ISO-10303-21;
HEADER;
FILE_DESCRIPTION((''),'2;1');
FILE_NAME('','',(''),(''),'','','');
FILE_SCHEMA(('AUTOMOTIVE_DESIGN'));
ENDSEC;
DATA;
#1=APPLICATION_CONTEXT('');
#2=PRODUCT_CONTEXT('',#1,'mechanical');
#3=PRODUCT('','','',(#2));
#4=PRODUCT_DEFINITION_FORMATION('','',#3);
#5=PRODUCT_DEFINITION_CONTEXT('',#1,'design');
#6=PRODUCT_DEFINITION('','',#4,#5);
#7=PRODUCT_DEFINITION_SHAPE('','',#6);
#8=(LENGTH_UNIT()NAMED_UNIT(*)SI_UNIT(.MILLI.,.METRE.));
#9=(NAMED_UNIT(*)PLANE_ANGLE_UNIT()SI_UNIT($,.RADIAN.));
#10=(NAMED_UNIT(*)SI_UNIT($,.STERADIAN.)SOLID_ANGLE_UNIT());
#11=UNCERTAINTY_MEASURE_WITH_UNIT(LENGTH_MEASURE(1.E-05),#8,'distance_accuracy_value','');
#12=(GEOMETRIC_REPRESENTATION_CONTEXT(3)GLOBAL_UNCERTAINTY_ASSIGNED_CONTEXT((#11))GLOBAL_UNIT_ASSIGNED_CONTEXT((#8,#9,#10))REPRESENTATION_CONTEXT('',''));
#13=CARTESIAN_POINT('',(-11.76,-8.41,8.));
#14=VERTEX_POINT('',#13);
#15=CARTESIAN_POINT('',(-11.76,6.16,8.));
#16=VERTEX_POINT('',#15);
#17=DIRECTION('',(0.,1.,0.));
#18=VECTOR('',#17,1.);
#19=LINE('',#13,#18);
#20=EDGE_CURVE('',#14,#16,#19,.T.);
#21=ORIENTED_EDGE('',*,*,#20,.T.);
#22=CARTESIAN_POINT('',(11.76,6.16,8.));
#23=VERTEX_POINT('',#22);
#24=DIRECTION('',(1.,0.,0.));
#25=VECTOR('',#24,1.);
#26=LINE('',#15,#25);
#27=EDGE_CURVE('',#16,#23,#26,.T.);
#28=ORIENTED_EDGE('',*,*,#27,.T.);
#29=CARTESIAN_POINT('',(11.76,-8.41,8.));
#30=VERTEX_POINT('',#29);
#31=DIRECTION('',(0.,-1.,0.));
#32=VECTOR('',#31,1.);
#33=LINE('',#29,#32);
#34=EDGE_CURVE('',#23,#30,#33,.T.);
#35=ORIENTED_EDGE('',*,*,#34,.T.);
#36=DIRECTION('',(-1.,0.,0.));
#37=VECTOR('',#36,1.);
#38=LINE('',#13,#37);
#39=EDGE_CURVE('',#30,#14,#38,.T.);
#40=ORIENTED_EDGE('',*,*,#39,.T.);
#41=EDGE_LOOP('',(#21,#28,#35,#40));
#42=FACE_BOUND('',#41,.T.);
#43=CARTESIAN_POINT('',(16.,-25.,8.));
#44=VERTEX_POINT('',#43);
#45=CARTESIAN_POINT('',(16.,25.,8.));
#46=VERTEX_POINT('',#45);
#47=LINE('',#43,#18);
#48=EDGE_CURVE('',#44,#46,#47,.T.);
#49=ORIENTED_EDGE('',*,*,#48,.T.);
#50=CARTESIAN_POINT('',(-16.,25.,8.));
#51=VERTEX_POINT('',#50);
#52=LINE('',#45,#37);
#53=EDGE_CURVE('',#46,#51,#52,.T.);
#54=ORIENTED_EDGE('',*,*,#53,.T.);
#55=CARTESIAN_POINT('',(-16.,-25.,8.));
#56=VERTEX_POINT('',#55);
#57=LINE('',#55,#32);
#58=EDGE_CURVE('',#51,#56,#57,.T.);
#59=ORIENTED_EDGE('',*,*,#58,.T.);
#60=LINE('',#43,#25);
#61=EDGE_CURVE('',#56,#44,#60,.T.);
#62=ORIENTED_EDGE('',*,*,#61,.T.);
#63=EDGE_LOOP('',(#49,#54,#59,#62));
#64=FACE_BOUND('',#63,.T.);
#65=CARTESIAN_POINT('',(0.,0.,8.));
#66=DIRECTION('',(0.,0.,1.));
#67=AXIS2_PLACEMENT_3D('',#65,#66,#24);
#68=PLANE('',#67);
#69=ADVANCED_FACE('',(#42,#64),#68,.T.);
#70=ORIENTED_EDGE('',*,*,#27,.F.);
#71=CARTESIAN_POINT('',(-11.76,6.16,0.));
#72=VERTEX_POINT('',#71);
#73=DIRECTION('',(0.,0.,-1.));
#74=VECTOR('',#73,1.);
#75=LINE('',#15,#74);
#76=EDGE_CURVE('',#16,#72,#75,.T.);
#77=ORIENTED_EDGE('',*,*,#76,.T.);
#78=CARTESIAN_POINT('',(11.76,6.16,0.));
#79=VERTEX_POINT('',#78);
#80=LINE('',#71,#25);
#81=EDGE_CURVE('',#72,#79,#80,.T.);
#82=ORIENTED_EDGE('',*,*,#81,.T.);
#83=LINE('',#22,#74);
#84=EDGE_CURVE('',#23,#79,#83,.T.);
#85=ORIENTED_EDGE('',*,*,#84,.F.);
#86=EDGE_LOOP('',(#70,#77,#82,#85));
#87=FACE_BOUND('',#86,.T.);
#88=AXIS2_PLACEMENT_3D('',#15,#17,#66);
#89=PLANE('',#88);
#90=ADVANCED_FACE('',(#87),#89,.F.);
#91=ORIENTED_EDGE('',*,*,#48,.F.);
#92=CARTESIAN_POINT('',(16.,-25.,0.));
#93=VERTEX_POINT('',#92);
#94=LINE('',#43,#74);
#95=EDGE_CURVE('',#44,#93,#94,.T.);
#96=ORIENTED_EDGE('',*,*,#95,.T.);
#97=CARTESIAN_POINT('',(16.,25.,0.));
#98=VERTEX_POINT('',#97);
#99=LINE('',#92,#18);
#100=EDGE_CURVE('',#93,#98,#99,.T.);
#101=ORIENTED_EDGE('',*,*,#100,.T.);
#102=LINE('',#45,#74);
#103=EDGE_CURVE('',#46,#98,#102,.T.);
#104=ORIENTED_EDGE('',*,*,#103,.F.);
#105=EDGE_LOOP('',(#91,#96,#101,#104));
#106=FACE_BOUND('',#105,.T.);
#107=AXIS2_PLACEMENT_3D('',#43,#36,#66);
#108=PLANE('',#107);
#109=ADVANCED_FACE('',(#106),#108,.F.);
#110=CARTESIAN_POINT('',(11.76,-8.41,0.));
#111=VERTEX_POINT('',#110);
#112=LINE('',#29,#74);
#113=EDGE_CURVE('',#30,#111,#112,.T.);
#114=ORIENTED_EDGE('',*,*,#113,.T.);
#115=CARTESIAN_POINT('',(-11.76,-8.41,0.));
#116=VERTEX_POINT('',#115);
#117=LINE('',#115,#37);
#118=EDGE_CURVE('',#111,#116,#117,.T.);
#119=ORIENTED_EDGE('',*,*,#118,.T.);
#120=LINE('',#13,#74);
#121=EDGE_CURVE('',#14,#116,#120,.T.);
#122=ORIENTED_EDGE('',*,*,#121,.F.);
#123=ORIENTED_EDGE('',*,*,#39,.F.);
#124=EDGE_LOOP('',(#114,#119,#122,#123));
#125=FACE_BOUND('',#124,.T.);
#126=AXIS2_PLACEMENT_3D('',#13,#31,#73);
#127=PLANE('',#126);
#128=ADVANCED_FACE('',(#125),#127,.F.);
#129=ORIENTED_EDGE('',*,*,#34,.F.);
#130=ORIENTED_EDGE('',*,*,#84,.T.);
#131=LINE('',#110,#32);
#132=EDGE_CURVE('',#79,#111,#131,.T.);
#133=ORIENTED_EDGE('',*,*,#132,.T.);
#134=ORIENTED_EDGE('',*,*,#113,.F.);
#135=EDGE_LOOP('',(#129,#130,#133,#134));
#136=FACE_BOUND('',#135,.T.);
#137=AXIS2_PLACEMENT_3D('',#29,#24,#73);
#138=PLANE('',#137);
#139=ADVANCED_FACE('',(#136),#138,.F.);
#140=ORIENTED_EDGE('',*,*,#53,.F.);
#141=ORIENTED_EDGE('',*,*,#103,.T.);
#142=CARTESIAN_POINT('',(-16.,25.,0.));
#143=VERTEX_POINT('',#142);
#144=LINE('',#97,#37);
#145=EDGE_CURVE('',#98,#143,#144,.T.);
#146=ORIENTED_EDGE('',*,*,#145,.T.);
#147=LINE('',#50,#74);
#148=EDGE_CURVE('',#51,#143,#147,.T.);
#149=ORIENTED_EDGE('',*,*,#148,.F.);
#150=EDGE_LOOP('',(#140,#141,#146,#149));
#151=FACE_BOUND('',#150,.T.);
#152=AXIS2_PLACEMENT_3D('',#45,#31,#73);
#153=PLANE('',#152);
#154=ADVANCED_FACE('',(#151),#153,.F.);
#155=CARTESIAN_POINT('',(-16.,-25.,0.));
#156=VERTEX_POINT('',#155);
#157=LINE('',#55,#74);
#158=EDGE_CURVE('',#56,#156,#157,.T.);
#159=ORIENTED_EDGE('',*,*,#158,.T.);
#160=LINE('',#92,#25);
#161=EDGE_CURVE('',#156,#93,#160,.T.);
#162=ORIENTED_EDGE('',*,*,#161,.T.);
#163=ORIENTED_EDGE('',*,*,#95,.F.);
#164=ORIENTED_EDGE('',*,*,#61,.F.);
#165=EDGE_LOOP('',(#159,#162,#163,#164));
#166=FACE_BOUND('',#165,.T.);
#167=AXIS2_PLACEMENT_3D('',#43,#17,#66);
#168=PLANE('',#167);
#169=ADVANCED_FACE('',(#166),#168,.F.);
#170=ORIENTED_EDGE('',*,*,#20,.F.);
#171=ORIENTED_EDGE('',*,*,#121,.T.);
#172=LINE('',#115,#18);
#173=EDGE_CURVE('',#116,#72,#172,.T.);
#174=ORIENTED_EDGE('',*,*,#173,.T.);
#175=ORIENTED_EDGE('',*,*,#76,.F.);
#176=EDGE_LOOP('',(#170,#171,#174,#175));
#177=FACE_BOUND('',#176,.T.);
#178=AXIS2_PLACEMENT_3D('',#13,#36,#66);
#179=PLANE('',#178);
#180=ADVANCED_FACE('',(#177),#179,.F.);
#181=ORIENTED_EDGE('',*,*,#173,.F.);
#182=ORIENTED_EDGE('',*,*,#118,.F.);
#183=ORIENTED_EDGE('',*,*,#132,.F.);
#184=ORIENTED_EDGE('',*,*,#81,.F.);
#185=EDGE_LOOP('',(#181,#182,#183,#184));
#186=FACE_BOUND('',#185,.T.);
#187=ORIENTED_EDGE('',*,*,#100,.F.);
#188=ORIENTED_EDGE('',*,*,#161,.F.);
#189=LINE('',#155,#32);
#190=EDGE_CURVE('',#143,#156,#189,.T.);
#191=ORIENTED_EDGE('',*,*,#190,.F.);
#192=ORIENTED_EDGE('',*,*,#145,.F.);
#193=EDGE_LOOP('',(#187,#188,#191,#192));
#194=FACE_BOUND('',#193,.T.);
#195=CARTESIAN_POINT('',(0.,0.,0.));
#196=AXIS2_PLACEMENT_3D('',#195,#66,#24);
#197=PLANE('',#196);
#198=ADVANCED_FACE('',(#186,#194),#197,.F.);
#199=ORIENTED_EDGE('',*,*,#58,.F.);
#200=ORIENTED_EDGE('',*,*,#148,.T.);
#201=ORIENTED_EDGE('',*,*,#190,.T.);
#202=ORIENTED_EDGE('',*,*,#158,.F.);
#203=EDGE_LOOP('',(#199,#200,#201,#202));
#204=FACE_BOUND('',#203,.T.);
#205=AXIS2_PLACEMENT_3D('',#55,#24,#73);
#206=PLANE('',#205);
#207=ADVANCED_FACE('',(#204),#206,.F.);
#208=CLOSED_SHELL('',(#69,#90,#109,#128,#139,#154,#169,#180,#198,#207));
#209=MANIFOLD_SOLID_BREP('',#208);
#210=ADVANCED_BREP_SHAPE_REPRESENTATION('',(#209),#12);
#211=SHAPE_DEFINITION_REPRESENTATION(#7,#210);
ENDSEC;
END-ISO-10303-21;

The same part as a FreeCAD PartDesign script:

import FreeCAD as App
import Part
import Sketcher

doc = App.newDocument("Part")
params = doc.addObject("Spreadsheet::Sheet", "Params")
for row, (alias, value) in enumerate([
    ("sketch1_width", "32 mm"),
    ("sketch1_height", "50 mm"),
    ("pad1_length", "8 mm"),
    ("sketch2_width", "23.52 mm"),
    ("sketch2_height", "14.57 mm"),
    ("pocket1_length", "8 mm"),
], start=1):
    params.set(f"A{row}", alias)
    params.set(f"B{row}", "=" + value)
    params.setAlias(f"B{row}", alias)

body = doc.addObject("PartDesign::Body", "Body")

sketch1 = doc.addObject("Sketcher::SketchObject", "Sketch")
body.addObject(sketch1)
sketch1.AttachmentSupport = (doc.XY_Plane, [""])
sketch1.MapMode = "FlatFace"
sketch1.addGeometry([
    Part.LineSegment(App.Vector(-16, 25, 0), App.Vector(-16, -25, 0)),
    Part.LineSegment(App.Vector(-16, -25, 0), App.Vector(16, -25, 0)),
    Part.LineSegment(App.Vector(16, -25, 0), App.Vector(16, 25, 0)),
    Part.LineSegment(App.Vector(16, 25, 0), App.Vector(-16, 25, 0)),
], False)
sketch1.addConstraint([
    Sketcher.Constraint("Coincident", 0, 2, 1, 1),
    Sketcher.Constraint("Coincident", 1, 2, 2, 1),
    Sketcher.Constraint("Coincident", 2, 2, 3, 1),
    Sketcher.Constraint("Coincident", 3, 2, 0, 1),
    Sketcher.Constraint("Vertical", 0),
    Sketcher.Constraint("Horizontal", 1),
    Sketcher.Constraint("Vertical", 2),
    Sketcher.Constraint("Horizontal", 3),
    Sketcher.Constraint("Symmetric", 0, 2, 2, 2, -1, 1),
    Sketcher.Constraint("DistanceX", 1, 1, 1, 2, 32.0),
    Sketcher.Constraint("DistanceY", 0, 2, 0, 1, 50.0),
])
sketch1.setExpression("Constraints[9]", "Params.sketch1_width")
sketch1.setExpression("Constraints[10]", "Params.sketch1_height")
pad1 = doc.addObject("PartDesign::Pad", "Pad")
body.addObject(pad1)
pad1.Profile = sketch1
pad1.setExpression("Length", "Params.pad1_length")

sketch2 = doc.addObject("Sketcher::SketchObject", "Sketch001")
body.addObject(sketch2)
sketch2.AttachmentSupport = (doc.XY_Plane, [""])
sketch2.MapMode = "FlatFace"
sketch2.addGeometry([
    Part.LineSegment(App.Vector(12, 6, 0), App.Vector(12, -8, 0)),
    Part.LineSegment(App.Vector(12, -8, 0), App.Vector(-12, -8, 0)),
    Part.LineSegment(App.Vector(-12, -8, 0), App.Vector(-12, 6, 0)),
    Part.LineSegment(App.Vector(-12, 6, 0), App.Vector(12, 6, 0)),
], False)
sketch2.addConstraint([
    Sketcher.Constraint("Coincident", 0, 2, 1, 1),
    Sketcher.Constraint("Coincident", 1, 2, 2, 1),
    Sketcher.Constraint("Coincident", 2, 2, 3, 1),
    Sketcher.Constraint("Coincident", 3, 2, 0, 1),
    Sketcher.Constraint("Vertical", 0),
    Sketcher.Constraint("Horizontal", 1),
    Sketcher.Constraint("Vertical", 2),
    Sketcher.Constraint("Horizontal", 3),
    Sketcher.Constraint("DistanceX", 1, 2, 1, 1, 23.52),
    Sketcher.Constraint("DistanceY", 0, 2, 0, 1, 14.57),
    Sketcher.Constraint("DistanceX", -1, 1, 0, 2, 11.76),
    Sketcher.Constraint("DistanceY", 0, 2, -1, 1, 8.41),
])
sketch2.setExpression("Constraints[8]", "Params.sketch2_width")
sketch2.setExpression("Constraints[9]", "Params.sketch2_height")
pocket1 = doc.addObject("PartDesign::Pocket", "Pocket")
body.addObject(pocket1)
pocket1.Profile = sketch2
pocket1.setExpression("Length", "Params.pocket1_length")
pocket1.Reversed = True

doc.recompute()
